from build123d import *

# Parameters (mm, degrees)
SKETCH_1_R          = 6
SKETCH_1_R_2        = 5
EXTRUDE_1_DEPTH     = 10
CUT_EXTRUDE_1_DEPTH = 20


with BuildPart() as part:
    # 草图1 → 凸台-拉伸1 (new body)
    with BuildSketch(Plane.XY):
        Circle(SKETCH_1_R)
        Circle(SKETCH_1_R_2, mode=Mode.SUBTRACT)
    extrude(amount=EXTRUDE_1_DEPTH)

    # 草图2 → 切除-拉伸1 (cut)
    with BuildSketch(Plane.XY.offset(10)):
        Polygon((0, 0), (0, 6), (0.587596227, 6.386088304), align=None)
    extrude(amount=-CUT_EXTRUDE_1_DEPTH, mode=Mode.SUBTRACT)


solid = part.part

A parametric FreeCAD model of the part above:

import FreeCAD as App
import Part
import Sketcher

V = App.Vector
Q = App.Units.Quantity


def add_polygon(sketch, points):
    """Adds a closed chain of lines whose ends are joined by coincident constraints."""
    first, n = sketch.GeometryCount, len(points)
    for a, b in zip(points, points[1:] + points[:1]):
        sketch.addGeometry(Part.LineSegment(App.Vector(*a, 0), App.Vector(*b, 0)), False)
    for i in range(n):
        sketch.addConstraint(Sketcher.Constraint("Coincident", first + i, 2, first + (i + 1) % n, 1))

doc = App.newDocument("Part")
body = doc.addObject("PartDesign::Body", "Body")

sketch1 = doc.addObject("Sketcher::SketchObject", "Sketch")
body.addObject(sketch1)
sketch1.AttachmentSupport = (doc.XY_Plane, [""])
sketch1.MapMode = "FlatFace"
sketch1.addGeometry(Part.Circle(V(0, 0, 0), V(0, 0, 1), 6), False)
sketch1.addGeometry(Part.Circle(V(0, 0, 0), V(0, 0, 1), 5), False)
sketch1.addConstraint(Sketcher.Constraint("Coincident", 0, 3, -1, 1))
sketch1.addConstraint(Sketcher.Constraint("Coincident", 1, 3, -1, 1))
sketch1.addConstraint(Sketcher.Constraint("Diameter", 0, Q("12 mm")))
sketch1.addConstraint(Sketcher.Constraint("Diameter", 1, Q("10 mm")))
pad1 = doc.addObject("PartDesign::Pad", "Pad")
body.addObject(pad1)
pad1.Profile = sketch1
pad1.Length = 10

sketch2 = doc.addObject("Sketcher::SketchObject", "Sketch001")
body.addObject(sketch2)
sketch2.AttachmentSupport = (doc.XY_Plane, [""])
sketch2.MapMode = "FlatFace"
sketch2.AttachmentOffset = App.Placement(V(0, 0, 10), App.Rotation())
add_polygon(sketch2, [(0, 6), (0, 0), (0.6, 6.4)])
sketch2.addConstraint(Sketcher.Constraint("Vertical", 0))
sketch2.addConstraint(Sketcher.Constraint("Coincident", 0, 2, -1, 1))
sketch2.addConstraint(Sketcher.Constraint("DistanceY", 0, 2, 0, 1, Q("6 mm")))
sketch2.addConstraint(Sketcher.Constraint("Distance", 2, Q("0.703089 mm")))
sketch2.addConstraint(Sketcher.Constraint("DistanceY", -1, 1, 1, 2, Q("6.386088 mm")))
pocket1 = doc.addObject("PartDesign::Pocket", "Pocket")
body.addObject(pocket1)
pocket1.Profile = sketch2
pocket1.Length = 20

doc.recompute()
